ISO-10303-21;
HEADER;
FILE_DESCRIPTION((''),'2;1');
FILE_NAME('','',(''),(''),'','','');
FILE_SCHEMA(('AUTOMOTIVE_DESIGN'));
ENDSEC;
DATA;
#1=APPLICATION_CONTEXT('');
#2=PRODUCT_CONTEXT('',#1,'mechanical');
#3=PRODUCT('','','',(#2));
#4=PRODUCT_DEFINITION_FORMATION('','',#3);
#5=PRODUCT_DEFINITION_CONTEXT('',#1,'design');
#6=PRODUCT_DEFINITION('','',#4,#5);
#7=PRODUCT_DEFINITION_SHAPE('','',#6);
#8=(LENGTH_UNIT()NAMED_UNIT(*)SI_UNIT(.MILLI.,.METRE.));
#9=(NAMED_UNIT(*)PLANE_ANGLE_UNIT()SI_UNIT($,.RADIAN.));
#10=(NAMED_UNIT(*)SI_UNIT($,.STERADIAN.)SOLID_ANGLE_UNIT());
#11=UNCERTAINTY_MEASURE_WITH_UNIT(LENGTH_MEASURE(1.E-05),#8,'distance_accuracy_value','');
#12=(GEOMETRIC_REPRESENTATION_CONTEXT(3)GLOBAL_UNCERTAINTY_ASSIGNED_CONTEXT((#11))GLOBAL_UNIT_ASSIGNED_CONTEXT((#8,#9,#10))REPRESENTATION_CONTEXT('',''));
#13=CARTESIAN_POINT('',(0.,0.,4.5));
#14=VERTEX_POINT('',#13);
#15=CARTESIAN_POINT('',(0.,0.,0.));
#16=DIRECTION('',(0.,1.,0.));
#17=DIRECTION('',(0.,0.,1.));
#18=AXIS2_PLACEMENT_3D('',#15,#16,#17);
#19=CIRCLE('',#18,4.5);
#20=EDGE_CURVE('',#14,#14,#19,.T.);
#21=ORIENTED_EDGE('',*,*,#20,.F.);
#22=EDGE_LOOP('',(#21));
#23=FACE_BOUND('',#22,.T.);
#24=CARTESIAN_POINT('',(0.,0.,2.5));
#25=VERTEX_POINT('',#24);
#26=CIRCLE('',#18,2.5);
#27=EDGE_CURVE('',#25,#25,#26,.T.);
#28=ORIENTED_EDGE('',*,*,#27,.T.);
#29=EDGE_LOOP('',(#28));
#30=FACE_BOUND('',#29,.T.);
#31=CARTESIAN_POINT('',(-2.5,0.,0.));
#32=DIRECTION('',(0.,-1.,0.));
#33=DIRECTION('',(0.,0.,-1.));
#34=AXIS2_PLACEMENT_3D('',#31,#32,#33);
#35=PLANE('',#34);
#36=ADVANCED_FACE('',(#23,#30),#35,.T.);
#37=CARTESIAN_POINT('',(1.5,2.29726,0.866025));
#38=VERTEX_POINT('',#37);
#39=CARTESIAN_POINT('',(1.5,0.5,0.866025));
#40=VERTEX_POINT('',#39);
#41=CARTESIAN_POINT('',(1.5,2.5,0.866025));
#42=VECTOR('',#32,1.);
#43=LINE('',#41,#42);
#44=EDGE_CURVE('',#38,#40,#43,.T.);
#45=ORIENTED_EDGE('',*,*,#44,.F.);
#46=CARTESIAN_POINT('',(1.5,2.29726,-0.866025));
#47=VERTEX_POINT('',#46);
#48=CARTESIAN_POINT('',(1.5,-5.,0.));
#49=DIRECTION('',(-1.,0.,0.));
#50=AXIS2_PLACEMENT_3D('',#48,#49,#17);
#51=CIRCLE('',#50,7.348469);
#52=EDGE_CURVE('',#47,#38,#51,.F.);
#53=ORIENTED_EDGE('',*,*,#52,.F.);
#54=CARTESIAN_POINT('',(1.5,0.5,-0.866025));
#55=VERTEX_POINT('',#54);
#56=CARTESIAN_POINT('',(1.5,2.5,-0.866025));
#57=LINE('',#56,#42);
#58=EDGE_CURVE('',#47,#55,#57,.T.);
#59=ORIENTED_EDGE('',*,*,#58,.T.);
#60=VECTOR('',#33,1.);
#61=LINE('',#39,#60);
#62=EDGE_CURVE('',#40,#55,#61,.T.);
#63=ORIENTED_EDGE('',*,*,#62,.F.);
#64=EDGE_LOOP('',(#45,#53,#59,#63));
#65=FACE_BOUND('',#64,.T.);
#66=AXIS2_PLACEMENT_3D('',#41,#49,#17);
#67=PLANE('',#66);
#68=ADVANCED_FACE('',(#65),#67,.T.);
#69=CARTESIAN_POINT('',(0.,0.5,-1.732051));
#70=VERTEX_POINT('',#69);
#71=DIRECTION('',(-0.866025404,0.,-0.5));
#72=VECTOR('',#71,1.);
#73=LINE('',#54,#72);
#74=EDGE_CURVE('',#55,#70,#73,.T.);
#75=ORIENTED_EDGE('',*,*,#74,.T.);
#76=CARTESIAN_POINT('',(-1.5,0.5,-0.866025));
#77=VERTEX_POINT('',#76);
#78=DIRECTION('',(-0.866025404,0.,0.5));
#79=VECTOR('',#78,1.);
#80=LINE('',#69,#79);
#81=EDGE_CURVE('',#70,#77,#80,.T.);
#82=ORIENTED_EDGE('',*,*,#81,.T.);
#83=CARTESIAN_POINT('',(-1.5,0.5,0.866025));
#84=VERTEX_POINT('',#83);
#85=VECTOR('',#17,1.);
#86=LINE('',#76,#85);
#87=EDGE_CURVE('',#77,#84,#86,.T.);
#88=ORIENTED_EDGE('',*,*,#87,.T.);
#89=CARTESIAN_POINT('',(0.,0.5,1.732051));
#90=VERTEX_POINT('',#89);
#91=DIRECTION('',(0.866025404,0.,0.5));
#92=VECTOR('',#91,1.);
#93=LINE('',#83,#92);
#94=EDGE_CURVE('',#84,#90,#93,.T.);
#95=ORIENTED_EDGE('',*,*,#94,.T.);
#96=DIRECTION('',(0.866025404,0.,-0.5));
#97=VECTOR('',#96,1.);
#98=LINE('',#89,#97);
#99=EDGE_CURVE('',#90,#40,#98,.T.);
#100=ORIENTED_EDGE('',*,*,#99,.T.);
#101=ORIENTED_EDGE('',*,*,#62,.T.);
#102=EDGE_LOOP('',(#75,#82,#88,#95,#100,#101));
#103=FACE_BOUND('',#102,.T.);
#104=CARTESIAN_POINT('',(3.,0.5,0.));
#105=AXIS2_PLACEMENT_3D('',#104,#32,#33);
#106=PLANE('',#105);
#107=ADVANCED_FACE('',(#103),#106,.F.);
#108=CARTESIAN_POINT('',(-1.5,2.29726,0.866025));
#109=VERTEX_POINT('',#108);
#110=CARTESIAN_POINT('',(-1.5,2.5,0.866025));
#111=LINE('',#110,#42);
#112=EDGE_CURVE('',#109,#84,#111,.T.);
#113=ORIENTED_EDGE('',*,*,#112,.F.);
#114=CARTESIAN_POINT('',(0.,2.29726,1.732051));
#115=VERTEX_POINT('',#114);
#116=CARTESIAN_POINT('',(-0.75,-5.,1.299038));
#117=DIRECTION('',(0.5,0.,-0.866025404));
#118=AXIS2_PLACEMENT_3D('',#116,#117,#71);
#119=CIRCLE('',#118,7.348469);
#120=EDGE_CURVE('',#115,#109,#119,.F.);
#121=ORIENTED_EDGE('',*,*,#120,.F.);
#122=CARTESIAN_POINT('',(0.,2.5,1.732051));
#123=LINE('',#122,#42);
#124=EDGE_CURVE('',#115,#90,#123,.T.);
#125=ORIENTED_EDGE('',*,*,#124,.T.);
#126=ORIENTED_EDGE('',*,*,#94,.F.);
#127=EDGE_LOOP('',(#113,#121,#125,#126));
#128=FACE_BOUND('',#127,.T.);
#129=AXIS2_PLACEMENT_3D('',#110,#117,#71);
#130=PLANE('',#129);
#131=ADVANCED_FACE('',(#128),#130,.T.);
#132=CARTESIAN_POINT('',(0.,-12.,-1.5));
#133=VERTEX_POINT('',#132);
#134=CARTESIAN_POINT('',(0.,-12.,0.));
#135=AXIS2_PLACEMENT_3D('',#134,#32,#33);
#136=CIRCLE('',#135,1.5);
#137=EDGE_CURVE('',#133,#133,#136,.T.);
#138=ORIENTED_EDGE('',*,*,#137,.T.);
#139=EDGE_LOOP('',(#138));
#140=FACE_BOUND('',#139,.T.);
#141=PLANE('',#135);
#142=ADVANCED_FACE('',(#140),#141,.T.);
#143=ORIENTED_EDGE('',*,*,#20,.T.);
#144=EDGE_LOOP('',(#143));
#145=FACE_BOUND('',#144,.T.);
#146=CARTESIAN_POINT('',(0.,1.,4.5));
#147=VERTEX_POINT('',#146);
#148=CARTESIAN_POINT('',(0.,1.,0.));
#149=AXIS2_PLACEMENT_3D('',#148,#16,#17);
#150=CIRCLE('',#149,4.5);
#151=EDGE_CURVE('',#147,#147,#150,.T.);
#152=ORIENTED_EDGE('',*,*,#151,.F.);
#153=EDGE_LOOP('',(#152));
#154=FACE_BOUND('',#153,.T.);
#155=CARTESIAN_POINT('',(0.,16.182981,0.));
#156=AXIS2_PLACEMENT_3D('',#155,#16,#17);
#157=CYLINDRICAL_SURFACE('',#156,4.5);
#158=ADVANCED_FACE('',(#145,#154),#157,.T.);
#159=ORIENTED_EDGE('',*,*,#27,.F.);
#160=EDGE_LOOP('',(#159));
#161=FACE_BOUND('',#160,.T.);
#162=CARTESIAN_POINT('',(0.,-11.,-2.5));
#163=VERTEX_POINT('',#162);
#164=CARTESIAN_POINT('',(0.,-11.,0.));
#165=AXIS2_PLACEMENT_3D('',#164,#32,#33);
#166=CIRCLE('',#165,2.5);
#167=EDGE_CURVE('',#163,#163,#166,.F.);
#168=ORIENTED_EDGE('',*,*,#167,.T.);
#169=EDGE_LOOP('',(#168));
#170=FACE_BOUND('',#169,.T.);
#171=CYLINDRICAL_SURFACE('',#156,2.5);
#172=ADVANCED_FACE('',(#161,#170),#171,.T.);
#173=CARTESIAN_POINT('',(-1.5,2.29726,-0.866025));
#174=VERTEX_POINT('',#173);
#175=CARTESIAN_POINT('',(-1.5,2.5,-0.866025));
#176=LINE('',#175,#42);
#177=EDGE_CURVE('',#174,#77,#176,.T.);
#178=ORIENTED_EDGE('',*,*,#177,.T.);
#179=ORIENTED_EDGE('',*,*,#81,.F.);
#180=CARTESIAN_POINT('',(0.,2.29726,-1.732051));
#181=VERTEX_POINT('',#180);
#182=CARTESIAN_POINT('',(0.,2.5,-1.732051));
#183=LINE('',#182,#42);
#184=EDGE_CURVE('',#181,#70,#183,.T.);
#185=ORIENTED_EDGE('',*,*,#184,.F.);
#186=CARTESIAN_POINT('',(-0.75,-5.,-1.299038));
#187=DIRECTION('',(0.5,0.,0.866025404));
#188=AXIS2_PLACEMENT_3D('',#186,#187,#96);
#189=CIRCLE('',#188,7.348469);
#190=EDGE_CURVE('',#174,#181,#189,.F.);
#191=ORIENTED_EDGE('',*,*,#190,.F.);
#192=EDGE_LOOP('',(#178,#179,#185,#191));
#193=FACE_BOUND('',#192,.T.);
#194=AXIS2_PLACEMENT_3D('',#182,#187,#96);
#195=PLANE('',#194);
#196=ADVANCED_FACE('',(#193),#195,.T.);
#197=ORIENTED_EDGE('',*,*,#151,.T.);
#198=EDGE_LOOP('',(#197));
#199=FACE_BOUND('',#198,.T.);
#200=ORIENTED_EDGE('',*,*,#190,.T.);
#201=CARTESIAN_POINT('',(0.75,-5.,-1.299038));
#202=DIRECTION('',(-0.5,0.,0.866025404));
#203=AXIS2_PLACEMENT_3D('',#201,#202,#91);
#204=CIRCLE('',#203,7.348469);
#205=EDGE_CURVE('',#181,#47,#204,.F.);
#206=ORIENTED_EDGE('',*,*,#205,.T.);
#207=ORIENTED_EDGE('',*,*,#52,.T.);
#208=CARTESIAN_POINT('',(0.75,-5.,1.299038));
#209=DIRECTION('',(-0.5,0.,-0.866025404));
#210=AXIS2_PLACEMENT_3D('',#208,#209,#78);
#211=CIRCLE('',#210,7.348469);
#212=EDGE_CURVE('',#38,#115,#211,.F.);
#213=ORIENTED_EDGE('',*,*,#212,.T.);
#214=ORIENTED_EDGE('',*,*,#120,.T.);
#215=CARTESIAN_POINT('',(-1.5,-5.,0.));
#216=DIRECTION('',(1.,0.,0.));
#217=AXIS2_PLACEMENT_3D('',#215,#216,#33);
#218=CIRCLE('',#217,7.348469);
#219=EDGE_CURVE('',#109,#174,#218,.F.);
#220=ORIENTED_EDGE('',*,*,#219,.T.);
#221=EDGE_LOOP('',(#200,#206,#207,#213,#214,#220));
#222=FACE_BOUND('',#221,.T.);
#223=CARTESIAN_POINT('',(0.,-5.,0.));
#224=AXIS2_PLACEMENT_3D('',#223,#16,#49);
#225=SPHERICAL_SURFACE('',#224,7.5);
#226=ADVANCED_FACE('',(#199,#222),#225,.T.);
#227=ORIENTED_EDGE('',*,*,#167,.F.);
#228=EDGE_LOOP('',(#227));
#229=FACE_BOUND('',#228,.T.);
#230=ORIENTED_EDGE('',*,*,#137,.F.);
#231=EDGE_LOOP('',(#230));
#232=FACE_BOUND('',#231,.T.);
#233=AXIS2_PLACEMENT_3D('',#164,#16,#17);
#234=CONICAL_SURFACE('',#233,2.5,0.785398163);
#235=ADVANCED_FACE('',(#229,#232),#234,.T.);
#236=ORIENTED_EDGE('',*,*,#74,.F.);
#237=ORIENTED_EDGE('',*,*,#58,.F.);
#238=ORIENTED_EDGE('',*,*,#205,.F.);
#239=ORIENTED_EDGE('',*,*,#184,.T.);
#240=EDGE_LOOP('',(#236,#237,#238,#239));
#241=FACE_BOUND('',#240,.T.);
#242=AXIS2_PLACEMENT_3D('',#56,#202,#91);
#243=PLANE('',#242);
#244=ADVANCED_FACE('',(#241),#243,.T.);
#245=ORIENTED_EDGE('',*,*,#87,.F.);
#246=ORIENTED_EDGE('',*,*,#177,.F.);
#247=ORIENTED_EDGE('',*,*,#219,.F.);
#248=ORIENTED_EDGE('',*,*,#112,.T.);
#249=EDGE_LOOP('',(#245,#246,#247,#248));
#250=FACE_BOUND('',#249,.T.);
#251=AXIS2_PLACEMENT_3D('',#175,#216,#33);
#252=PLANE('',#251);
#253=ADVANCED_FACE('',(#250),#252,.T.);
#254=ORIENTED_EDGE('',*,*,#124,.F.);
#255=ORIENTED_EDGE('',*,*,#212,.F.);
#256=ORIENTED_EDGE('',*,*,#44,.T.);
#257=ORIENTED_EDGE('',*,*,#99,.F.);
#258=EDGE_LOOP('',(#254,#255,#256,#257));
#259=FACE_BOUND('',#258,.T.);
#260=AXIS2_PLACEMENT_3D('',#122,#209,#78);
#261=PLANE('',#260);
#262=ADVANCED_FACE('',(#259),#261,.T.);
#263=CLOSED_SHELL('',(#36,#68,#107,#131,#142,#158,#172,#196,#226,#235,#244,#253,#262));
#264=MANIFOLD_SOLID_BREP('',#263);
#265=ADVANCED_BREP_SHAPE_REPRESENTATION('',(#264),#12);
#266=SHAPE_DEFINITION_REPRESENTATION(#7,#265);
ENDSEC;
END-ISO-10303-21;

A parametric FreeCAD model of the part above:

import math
import FreeCAD as App
import Part
import Sketcher
Q = App.Units.Quantity


def edges_at(feature, points):
    """Names of the edges that pass closest to the given points."""
    edges = feature.Shape.Edges
    near = lambda p: min(range(len(edges)), key=lambda i: edges[i].distToShape(Part.Vertex(*p))[0])
    return sorted({f"Edge{near(p) + 1}" for p in points})


def add_polygon(sketch, points):
    """Adds a closed chain of lines whose ends are joined by coincident constraints."""
    first, n = sketch.GeometryCount, len(points)
    for a, b in zip(points, points[1:] + points[:1]):
        sketch.addGeometry(Part.LineSegment(App.Vector(*a, 0), App.Vector(*b, 0)), False)
    for i in range(n):
        sketch.addConstraint(Sketcher.Constraint("Coincident", first + i, 2, first + (i + 1) % n, 1))

doc = App.newDocument("Part")
body = doc.addObject("PartDesign::Body", "Body")

sketch1 = doc.addObject("Sketcher::SketchObject", "Sketch")
body.addObject(sketch1)
sketch1.AttachmentSupport = (doc.XY_Plane, [""])
sketch1.MapMode = "FlatFace"
sketch1.addGeometry([
    Part.LineSegment(App.Vector(0, -12, 0), App.Vector(0, 2.5, 0)),
    Part.ArcOfCircle(Part.Circle(App.Vector(0, -5, 0), App.Vector(0, 0, 1), 7.5), math.radians(90), math.radians(127)),
    Part.LineSegment(App.Vector(-4.5, 1, 0), App.Vector(-4.5, 0, 0)),
    Part.LineSegment(App.Vector(-4.5, 0, 0), App.Vector(-2.5, 0, 0)),
    Part.LineSegment(App.Vector(-2.5, 0, 0), App.Vector(-2.5, -12, 0)),
    Part.LineSegment(App.Vector(-2.5, -12, 0), App.Vector(0, -12, 0)),
], False)
sketch1.addConstraint([
    Sketcher.Constraint("Coincident", 0, 2, 1, 1),
    Sketcher.Constraint("Coincident", 1, 2, 2, 1),
    Sketcher.Constraint("Coincident", 2, 2, 3, 1),
    Sketcher.Constraint("Coincident", 3, 2, 4, 1),
    Sketcher.Constraint("Coincident", 4, 2, 5, 1),
    Sketcher.Constraint("Coincident", 5, 2, 0, 1),
    Sketcher.Constraint("Vertical", 0),
    Sketcher.Constraint("Vertical", 2),
    Sketcher.Constraint("Horizontal", 3),
    Sketcher.Constraint("Vertical", 4),
    Sketcher.Constraint("Horizontal", 5),
    Sketcher.Constraint("PointOnObject", 1, 3, -2),
    Sketcher.Constraint("PointOnObject", 0, 2, -2),
    Sketcher.Constraint("PointOnObject", 2, 2, -1),
    Sketcher.Constraint("Radius", 1, 7.5),
    Sketcher.Constraint("DistanceX", 3, 1, 3, 2, 2.0),
    Sketcher.Constraint("DistanceY", 2, 2, 2, 1, 1.0),
    Sketcher.Constraint("DistanceY", 4, 2, 4, 1, 12.0),
    Sketcher.Constraint("DistanceX", 5, 1, 5, 2, 2.5),
])
revolution = doc.addObject("PartDesign::Revolution", "Revolution")
body.addObject(revolution)
revolution.Profile = sketch1
revolution.ReferenceAxis = (sketch1, ["V_Axis"])
revolution.Angle = 360

sketch2 = doc.addObject("Sketcher::SketchObject", "Sketch001")
body.addObject(sketch2)
sketch2.AttachmentSupport = (doc.XZ_Plane, [""])
sketch2.MapMode = "FlatFace"
sketch2.AttachmentOffset = App.Placement(App.Vector(0, 0, -0.5), App.Rotation())
add_polygon(sketch2, [(0, -1.7), (-1.5, -0.9), (-1.5, 0.9), (0, 1.7), (1.5, 0.9), (1.5, -0.9)])
sketch2.addConstraint([
    Sketcher.Constraint("Vertical", 1),
    Sketcher.Constraint("Vertical", 4),
    Sketcher.Constraint("Symmetric", 0, 2, 3, 2, -1, 1),
    Sketcher.Constraint("Symmetric", 2, 2, 5, 2, -1, 1),
    Sketcher.Constraint("PointOnObject", 2, 2, -2),
    Sketcher.Constraint("Parallel", 2, 5),
    Sketcher.Constraint("Horizontal", 1, 2, 3, 2),
    Sketcher.Constraint("Angle", 0, Q("150 deg")),
    Sketcher.Constraint("DistanceX", 1, 2, 3, 2, 3.0),
    Sketcher.Constraint("DistanceY", 1, 1, 1, 2, 1.732051),
])
pocket1 = doc.addObject("PartDesign::Pocket", "Pocket")
body.addObject(pocket1)
pocket1.Profile = sketch2
pocket1.Type = "ThroughAll"
doc.recompute()

chamfer = doc.addObject("PartDesign::Chamfer", "Chamfer")
body.addObject(chamfer)
chamfer.Base = (pocket1, edges_at(pocket1, [(0, -12, -2.5)]))
chamfer.Size = 1

doc.recompute()
